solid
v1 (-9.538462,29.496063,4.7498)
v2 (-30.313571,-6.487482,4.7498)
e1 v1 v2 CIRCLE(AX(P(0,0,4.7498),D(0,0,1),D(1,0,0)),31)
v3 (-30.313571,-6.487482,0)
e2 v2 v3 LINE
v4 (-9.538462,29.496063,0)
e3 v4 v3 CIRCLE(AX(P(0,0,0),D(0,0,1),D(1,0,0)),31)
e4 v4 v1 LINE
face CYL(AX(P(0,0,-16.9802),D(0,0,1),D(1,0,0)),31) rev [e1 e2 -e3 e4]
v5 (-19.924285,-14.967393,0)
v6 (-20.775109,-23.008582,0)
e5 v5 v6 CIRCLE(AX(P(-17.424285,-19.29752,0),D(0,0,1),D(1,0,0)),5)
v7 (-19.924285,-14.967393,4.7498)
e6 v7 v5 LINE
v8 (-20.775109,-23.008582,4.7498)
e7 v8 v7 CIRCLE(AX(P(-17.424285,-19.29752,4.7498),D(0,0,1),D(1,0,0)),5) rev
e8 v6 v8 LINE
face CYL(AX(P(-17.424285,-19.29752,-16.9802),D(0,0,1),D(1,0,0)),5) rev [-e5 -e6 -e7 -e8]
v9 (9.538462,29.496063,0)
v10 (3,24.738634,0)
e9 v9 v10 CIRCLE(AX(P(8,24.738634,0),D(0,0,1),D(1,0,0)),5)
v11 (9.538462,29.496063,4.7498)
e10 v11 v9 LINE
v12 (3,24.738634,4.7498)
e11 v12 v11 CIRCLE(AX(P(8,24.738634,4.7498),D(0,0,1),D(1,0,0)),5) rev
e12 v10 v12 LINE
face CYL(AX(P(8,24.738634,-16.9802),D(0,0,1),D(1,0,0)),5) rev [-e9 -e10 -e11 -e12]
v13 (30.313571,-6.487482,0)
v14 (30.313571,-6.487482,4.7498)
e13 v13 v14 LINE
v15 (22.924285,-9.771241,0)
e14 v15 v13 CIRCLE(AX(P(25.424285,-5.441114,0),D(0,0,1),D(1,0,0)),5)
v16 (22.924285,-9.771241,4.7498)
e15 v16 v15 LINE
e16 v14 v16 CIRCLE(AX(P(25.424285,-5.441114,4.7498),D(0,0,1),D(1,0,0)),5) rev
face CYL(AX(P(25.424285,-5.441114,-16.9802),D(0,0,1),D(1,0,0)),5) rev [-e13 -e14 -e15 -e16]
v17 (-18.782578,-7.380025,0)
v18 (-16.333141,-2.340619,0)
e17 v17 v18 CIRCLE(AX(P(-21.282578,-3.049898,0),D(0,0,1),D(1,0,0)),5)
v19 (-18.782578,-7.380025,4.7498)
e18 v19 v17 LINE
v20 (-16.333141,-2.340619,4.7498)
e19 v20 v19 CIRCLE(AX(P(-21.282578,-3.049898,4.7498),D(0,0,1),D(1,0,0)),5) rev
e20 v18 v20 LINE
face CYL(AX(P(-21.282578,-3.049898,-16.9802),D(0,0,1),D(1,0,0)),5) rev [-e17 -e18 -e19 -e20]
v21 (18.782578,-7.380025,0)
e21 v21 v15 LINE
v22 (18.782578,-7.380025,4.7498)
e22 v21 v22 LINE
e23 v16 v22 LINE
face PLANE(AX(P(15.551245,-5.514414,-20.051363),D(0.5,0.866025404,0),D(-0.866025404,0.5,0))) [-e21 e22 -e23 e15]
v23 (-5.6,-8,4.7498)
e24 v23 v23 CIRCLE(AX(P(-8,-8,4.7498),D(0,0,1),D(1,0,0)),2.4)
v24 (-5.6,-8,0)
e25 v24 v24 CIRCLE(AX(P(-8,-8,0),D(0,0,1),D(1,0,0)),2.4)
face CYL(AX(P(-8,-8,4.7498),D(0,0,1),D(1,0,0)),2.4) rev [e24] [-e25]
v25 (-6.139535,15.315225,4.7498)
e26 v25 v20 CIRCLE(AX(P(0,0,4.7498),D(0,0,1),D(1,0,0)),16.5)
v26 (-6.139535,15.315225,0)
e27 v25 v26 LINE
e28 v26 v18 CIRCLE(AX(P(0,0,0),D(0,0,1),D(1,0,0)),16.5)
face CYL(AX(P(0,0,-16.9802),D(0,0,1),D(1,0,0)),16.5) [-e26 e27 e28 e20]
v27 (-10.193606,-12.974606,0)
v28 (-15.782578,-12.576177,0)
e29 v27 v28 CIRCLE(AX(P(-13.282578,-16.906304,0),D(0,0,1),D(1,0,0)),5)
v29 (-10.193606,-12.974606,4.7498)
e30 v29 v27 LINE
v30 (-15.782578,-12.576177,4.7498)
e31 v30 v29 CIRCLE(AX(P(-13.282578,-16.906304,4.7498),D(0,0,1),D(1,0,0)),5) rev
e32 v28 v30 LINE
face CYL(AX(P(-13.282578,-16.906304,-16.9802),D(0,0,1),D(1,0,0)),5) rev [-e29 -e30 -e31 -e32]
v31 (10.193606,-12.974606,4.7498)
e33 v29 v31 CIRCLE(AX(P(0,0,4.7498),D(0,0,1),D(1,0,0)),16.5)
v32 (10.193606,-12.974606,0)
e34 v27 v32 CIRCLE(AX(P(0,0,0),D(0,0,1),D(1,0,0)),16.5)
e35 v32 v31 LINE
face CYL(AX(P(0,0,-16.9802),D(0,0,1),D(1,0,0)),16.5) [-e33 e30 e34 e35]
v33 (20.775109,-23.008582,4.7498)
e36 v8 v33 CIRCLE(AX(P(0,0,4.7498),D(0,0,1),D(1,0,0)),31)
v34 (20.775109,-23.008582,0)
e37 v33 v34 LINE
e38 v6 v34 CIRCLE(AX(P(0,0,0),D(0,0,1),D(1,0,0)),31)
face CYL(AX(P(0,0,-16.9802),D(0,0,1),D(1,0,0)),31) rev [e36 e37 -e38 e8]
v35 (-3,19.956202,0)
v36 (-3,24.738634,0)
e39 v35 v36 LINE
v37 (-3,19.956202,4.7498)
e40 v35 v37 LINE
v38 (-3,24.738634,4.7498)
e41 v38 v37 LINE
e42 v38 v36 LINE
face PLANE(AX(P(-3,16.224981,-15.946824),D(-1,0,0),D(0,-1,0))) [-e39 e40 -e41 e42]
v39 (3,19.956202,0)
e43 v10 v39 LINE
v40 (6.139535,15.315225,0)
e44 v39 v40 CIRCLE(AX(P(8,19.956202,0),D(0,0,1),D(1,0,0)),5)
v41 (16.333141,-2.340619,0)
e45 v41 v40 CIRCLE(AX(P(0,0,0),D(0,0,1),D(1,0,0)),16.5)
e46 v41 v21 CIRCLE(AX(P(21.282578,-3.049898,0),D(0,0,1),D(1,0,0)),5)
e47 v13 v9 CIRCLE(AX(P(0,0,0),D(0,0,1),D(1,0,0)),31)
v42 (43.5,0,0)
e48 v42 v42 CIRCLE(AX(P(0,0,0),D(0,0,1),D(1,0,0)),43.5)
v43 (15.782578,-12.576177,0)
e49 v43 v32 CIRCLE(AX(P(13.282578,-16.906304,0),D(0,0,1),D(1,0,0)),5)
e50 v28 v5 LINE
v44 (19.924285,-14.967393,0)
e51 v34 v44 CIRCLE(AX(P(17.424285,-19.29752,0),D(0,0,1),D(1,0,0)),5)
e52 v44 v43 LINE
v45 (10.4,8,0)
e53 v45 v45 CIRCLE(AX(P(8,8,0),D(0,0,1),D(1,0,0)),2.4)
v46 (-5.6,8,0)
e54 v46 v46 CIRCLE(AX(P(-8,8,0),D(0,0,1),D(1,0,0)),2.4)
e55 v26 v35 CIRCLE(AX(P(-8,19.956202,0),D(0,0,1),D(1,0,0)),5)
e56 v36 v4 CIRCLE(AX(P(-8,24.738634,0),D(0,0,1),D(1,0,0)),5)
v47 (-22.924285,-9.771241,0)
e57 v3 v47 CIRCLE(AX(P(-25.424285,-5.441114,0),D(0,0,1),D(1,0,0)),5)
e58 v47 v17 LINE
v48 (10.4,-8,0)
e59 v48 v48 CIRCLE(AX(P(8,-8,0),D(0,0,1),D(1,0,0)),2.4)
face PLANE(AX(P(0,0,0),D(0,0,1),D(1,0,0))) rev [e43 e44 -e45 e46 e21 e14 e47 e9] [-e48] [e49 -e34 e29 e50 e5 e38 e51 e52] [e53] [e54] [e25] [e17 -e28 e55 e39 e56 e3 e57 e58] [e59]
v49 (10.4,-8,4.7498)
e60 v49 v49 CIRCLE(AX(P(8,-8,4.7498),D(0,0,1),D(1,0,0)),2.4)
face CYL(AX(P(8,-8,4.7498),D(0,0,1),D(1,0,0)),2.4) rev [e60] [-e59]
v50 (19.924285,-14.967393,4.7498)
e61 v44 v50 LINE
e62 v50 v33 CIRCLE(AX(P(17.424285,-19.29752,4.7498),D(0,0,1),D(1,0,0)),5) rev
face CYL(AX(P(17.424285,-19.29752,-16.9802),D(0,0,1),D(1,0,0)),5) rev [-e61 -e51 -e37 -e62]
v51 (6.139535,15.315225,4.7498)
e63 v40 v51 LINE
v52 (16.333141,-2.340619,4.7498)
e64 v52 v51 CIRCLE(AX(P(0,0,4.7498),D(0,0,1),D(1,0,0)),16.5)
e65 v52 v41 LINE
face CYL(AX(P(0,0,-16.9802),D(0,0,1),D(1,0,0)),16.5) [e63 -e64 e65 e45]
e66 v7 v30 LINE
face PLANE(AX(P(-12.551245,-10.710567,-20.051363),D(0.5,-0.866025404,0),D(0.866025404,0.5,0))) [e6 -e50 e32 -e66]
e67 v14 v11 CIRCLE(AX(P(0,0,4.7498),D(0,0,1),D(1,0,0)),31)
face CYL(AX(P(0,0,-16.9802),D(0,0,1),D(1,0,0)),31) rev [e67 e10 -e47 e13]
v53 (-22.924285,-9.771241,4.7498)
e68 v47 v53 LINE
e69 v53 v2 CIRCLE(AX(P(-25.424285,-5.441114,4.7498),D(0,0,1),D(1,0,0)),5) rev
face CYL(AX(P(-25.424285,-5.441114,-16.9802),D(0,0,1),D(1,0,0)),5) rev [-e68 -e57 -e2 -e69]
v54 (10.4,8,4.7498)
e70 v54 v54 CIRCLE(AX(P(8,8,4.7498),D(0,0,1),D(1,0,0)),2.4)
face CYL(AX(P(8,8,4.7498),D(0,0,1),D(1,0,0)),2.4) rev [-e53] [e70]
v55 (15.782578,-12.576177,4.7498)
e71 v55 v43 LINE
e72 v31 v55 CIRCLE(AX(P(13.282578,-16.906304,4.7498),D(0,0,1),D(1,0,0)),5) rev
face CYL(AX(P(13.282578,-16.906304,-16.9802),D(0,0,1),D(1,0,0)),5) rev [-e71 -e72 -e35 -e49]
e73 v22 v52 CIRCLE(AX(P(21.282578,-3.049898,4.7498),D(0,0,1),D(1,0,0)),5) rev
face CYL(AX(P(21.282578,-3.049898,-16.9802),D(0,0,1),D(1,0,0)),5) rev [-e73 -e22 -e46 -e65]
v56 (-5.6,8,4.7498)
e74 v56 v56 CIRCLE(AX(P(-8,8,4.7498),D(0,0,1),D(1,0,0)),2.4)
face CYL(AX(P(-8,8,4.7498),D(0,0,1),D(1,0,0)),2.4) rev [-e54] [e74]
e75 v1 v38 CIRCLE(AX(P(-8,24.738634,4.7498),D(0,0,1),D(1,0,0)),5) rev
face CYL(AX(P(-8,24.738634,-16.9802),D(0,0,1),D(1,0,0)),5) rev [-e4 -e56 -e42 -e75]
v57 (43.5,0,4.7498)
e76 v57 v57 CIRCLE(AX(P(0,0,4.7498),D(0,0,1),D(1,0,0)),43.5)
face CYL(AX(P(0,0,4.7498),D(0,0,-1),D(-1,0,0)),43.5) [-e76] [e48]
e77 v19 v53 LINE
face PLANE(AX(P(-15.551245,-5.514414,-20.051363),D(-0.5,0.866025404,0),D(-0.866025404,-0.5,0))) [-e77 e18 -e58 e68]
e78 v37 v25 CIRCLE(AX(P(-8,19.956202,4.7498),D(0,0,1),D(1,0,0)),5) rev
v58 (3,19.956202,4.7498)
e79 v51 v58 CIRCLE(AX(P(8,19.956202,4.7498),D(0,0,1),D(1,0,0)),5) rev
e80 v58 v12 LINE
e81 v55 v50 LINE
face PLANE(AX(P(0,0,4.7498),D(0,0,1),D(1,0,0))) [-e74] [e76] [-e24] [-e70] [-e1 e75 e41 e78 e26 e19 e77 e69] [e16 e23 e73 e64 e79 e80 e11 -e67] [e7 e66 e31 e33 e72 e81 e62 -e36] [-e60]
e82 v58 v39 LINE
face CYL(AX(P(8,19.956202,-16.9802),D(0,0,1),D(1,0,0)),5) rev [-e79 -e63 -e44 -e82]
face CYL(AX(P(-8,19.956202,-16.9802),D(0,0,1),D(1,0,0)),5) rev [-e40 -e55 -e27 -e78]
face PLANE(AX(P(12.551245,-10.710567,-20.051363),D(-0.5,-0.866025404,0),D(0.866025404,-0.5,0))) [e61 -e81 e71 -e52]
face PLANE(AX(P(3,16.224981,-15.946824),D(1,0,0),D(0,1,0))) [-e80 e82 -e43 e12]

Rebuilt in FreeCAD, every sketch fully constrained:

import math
import FreeCAD as App
import Part
import Sketcher


def edges_at(feature, points):
    """Names of the edges that pass closest to the given points."""
    edges = feature.Shape.Edges
    near = lambda p: min(range(len(edges)), key=lambda i: edges[i].distToShape(Part.Vertex(*p))[0])
    return sorted({f"Edge{near(p) + 1}" for p in points})

doc = App.newDocument("Part")
body = doc.addObject("PartDesign::Body", "Body")
body.AllowCompound = True

# Sketch on XY plane
sketch1 = body.newObject("Sketcher::SketchObject", "Sketch")
sketch1.AttachmentSupport = (doc.getObject("XY_Plane"), [""])
sketch1.MapMode = "FlatFace"
sketch1.addGeometry(Part.Circle(App.Vector(0, 0, 0), App.Vector(0, 0, 1), 44), False)
sketch1.addConstraint(Sketcher.Constraint("Coincident", 0, 3, -1, 1))
sketch1.addConstraint(Sketcher.Constraint("Diameter", 0, 87.0))
pad1 = body.newObject("PartDesign::Pad", "Pad")
pad1.Profile = sketch1
pad1.Length = 4.7498

# Sketch on XY plane
sketch2 = body.newObject("Sketcher::SketchObject", "Sketch001")
sketch2.AttachmentSupport = (doc.getObject("XY_Plane"), [""])
sketch2.MapMode = "FlatFace"
sketch2.AttachmentOffset = App.Placement(App.Vector(0, 0, 4.7498), App.Rotation())
sketch2.addGeometry(Part.Circle(App.Vector(0, 0, 0), App.Vector(0, 0, 1), 31), False)
sketch2.addGeometry(Part.Circle(App.Vector(0, 0, 0), App.Vector(0, 0, 1), 16), False)
sketch2.addConstraint(Sketcher.Constraint("Coincident", 0, 3, -1, 1))
sketch2.addConstraint(Sketcher.Constraint("Coincident", 1, 3, -1, 1))
sketch2.addConstraint(Sketcher.Constraint("Diameter", 0, 62.0))
sketch2.addConstraint(Sketcher.Constraint("Diameter", 1, 33.0))
pocket1 = body.newObject("PartDesign::Pocket", "Pocket")
pocket1.Profile = sketch2
pocket1.Length = 21.73

# Sketch on XY plane
sketch3 = body.newObject("Sketcher::SketchObject", "Sketch002")
sketch3.AttachmentSupport = (doc.getObject("XY_Plane"), [""])
sketch3.MapMode = "FlatFace"
sketch3.AttachmentOffset = App.Placement(App.Vector(0, 0, 4.7498), App.Rotation())
sketch3.addGeometry(Part.LineSegment(App.Vector(-3, 31, 0), App.Vector(-3, 16, 0)), False)
sketch3.addGeometry(Part.ArcOfCircle(Part.Circle(App.Vector(0, 0, 0), App.Vector(0, 0, 1), 17), math.radians(80), math.radians(100)), False)
sketch3.addGeometry(Part.LineSegment(App.Vector(3, 16, 0), App.Vector(3, 31, 0)), False)
sketch3.addGeometry(Part.ArcOfCircle(Part.Circle(App.Vector(0, 0, 0), App.Vector(0, 0, 1), 31), math.radians(84.45), math.radians(95.55)), False)
sketch3.addConstraint(Sketcher.Constraint("Coincident", 0, 2, 1, 2))
sketch3.addConstraint(Sketcher.Constraint("Coincident", 1, 1, 2, 1))
sketch3.addConstraint(Sketcher.Constraint("Coincident", 2, 2, 3, 1))
sketch3.addConstraint(Sketcher.Constraint("Coincident", 3, 2, 0, 1))
sketch3.addConstraint(Sketcher.Constraint("Vertical", 0))
sketch3.addConstraint(Sketcher.Constraint("Vertical", 2))
sketch3.addConstraint(Sketcher.Constraint("Coincident", 1, 3, -1, 1))
sketch3.addConstraint(Sketcher.Constraint("Coincident", 3, 3, -1, 1))
sketch3.addConstraint(Sketcher.Constraint("Horizontal", 0, 2, 1, 1))
sketch3.addConstraint(Sketcher.Constraint("Radius", 3, 31.0))
sketch3.addConstraint(Sketcher.Constraint("Radius", 1, 16.5))
sketch3.addConstraint(Sketcher.Constraint("DistanceX", 0, 2, -1, 1, 3.0))
pad2 = body.newObject("PartDesign::Pad", "Pad001")
pad2.Profile = sketch3
pad2.Length = 4.7498
pad2.Reversed = True
doc.recompute()

polarpattern = body.newObject("PartDesign::PolarPattern", "PolarPattern")
polarpattern.Originals = [pad2]
polarpattern.Axis = (doc.getObject("Z_Axis"), [""])
polarpattern.Angle = 360
polarpattern.Occurrences = 3
body.Tip = polarpattern
doc.recompute()

fillet = body.newObject("PartDesign::Fillet", "Fillet")
fillet.Base = (polarpattern, edges_at(polarpattern, [
    (-15.551, -5.514, 2.375),
    (-12.551, -10.711, 2.375),
    (-25.221, -18.025, 2.375),
    (-28.221, -12.829, 2.375),
    (12.551, -10.711, 2.375),
    (15.551, -5.514, 2.375),
    (28.221, -12.829, 2.375),
    (25.221, -18.025, 2.375),
    (3, 16.225, 2.375),
    (-3, 16.225, 2.375),
    (-3, 30.854, 2.375),
    (3, 30.854, 2.375),
]))
fillet.Radius = 5

# Sketch on XY plane
sketch4 = body.newObject("Sketcher::SketchObject", "Sketch003")
sketch4.AttachmentSupport = (doc.getObject("XY_Plane"), [""])
sketch4.MapMode = "FlatFace"
sketch4.AttachmentOffset = App.Placement(App.Vector(0, 0, 4.7498), App.Rotation())
sketch4.addGeometry(Part.Circle(App.Vector(-8, 8, 0), App.Vector(0, 0, 1), 2.4), False)
sketch4.addGeometry(Part.Circle(App.Vector(-8, -8, 0), App.Vector(0, 0, 1), 2.4), False)
sketch4.addGeometry(Part.Circle(App.Vector(8, -8, 0), App.Vector(0, 0, 1), 2.4), False)
sketch4.addGeometry(Part.Circle(App.Vector(8, 8, 0), App.Vector(0, 0, 1), 2.4), False)
sketch4.addConstraint(Sketcher.Constraint("Equal", 0, 1))
sketch4.addConstraint(Sketcher.Constraint("Equal", 1, 2))
sketch4.addConstraint(Sketcher.Constraint("Equal", 2, 3))
sketch4.addConstraint(Sketcher.Constraint("Symmetric", 0, 3, 2, 3, -1, 1))
sketch4.addConstraint(Sketcher.Constraint("Symmetric", 1, 3, 3, 3, -1, 1))
sketch4.addConstraint(Sketcher.Constraint("Symmetric", 1, 3, 2, 3, -2))
sketch4.addConstraint(Sketcher.Constraint("Diameter", 0, 4.8))
sketch4.addConstraint(Sketcher.Constraint("DistanceX", 0, 3, -1, 1, 8.0))
sketch4.addConstraint(Sketcher.Constraint("DistanceY", -1, 1, 0, 3, 8.0))
doc.recompute()
hole = body.newObject("PartDesign::Hole", "Hole")
hole.Profile = sketch4
hole.ThreadType = "None"
hole.Diameter = 4.8
hole.DepthType = "ThroughAll"

doc.recompute()
